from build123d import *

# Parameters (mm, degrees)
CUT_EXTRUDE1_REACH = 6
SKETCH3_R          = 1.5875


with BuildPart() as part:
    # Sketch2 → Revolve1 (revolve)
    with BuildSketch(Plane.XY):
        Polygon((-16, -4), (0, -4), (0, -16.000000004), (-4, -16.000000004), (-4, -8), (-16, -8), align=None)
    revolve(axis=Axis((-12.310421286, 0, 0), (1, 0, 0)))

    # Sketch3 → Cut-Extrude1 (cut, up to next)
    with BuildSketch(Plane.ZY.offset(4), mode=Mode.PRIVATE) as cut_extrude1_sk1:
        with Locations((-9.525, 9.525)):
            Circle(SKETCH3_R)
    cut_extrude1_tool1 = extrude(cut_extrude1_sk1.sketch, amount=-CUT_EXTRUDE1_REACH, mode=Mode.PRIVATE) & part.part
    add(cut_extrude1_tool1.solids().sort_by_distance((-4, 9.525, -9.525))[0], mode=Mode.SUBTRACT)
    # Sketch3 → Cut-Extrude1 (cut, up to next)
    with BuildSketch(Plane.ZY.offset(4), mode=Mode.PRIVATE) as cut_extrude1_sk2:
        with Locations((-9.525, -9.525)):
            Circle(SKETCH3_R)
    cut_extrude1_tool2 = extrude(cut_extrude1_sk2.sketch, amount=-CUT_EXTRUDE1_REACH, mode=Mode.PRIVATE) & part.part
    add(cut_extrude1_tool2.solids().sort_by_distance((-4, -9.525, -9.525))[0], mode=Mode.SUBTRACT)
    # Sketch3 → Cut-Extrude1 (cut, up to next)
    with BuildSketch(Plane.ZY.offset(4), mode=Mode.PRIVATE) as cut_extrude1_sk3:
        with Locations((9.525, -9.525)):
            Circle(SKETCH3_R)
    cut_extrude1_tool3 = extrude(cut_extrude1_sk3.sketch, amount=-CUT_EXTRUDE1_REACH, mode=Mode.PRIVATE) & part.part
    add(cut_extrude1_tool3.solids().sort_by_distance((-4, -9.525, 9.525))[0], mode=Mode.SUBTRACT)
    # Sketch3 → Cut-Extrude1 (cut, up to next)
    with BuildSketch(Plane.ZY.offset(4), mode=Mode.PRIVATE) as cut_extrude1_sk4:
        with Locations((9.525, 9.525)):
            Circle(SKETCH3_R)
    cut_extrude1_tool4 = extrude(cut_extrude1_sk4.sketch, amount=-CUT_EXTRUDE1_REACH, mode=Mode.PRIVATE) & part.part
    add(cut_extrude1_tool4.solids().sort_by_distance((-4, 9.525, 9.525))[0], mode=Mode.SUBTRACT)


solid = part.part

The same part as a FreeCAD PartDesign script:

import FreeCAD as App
import Part
import Sketcher
from FreeCAD import Vector

doc = App.newDocument("Part")
params = doc.addObject("Spreadsheet::Sheet", "Params")
for row, (alias, value) in enumerate([
    ("sketch1_width", "16 mm"),
    ("sketch1_width2", "12 mm"),
    ("revolution_angle", "360 deg"),
], start=1):
    params.set(f"A{row}", alias)
    params.set(f"B{row}", "=" + value)
    params.setAlias(f"B{row}", alias)

body = doc.addObject("PartDesign::Body", "Body")

sketch1 = body.newObject("Sketcher::SketchObject", "Sketch")
sketch1.AttachmentSupport = (doc.getObject("XY_Plane"), [""])
sketch1.MapMode = "FlatFace"
sketch1.addGeometry(Part.LineSegment(Vector(0, -4, 0), Vector(-16, -4, 0)), False)
sketch1.addGeometry(Part.LineSegment(Vector(-16, -4, 0), Vector(-16, -8, 0)), False)
sketch1.addGeometry(Part.LineSegment(Vector(-16, -8, 0), Vector(-4, -8, 0)), False)
sketch1.addGeometry(Part.LineSegment(Vector(-4, -8, 0), Vector(-4, -16, 0)), False)
sketch1.addGeometry(Part.LineSegment(Vector(-4, -16, 0), Vector(0, -16, 0)), False)
sketch1.addGeometry(Part.LineSegment(Vector(0, -16, 0), Vector(0, -4, 0)), False)
sketch1.addConstraint(Sketcher.Constraint("Coincident", 0, 2, 1, 1))
sketch1.addConstraint(Sketcher.Constraint("Coincident", 1, 2, 2, 1))
sketch1.addConstraint(Sketcher.Constraint("Coincident", 2, 2, 3, 1))
sketch1.addConstraint(Sketcher.Constraint("Coincident", 3, 2, 4, 1))
sketch1.addConstraint(Sketcher.Constraint("Coincident", 4, 2, 5, 1))
sketch1.addConstraint(Sketcher.Constraint("Coincident", 5, 2, 0, 1))
sketch1.addConstraint(Sketcher.Constraint("Horizontal", 0))
sketch1.addConstraint(Sketcher.Constraint("Vertical", 1))
sketch1.addConstraint(Sketcher.Constraint("Horizontal", 2))
sketch1.addConstraint(Sketcher.Constraint("Vertical", 3))
sketch1.addConstraint(Sketcher.Constraint("Horizontal", 4))
sketch1.addConstraint(Sketcher.Constraint("Vertical", 5))
sketch1.addConstraint(Sketcher.Constraint("PointOnObject", 4, 2, -2))
sketch1.addConstraint(Sketcher.Constraint("Equal", 4, 1))
sketch1.addConstraint(Sketcher.Constraint("Equal", 2, 5))
sketch1.addConstraint(Sketcher.Constraint("DistanceX", 0, 2, 0, 1, 16.0))
sketch1.addConstraint(Sketcher.Constraint("DistanceX", 2, 1, 2, 2, 12.0))
sketch1.addConstraint(Sketcher.Constraint("DistanceY", 0, 2, -1, 1, 4.0))
sketch1.setExpression("Constraints[15]", "Params.sketch1_width")
sketch1.setExpression("Constraints[16]", "Params.sketch1_width2")
revolution = body.newObject("PartDesign::Revolution", "Revolution")
revolution.Profile = sketch1
revolution.ReferenceAxis = (sketch1, ["H_Axis"])
revolution.setExpression("Angle", "Params.revolution_angle")

sketch2 = body.newObject("Sketcher::SketchObject", "Sketch001")
sketch2.AttachmentSupport = (doc.getObject("YZ_Plane"), [""])
sketch2.MapMode = "FlatFace"
sketch2.AttachmentOffset = App.Placement(Vector(0, 0, -4), App.Rotation())
sketch2.addGeometry(Part.Circle(Vector(9.5, -9.5, 0), Vector(0, 0, 1), 1.6), False)
sketch2.addConstraint(Sketcher.Constraint("Diameter", 0, 3.175))
sketch2.addConstraint(Sketcher.Constraint("DistanceX", -1, 1, 0, 3, 9.525))
sketch2.addConstraint(Sketcher.Constraint("DistanceY", 0, 3, -1, 1, 9.525))
pocket1 = body.newObject("PartDesign::Pocket", "Pocket")
pocket1.Profile = sketch2
pocket1.Type = "UpToFirst"
pocket1.Reversed = True

sketch3 = body.newObject("Sketcher::SketchObject", "Sketch002")
sketch3.AttachmentSupport = (doc.getObject("YZ_Plane"), [""])
sketch3.MapMode = "FlatFace"
sketch3.AttachmentOffset = App.Placement(Vector(0, 0, -4), App.Rotation())
sketch3.addGeometry(Part.Circle(Vector(-9.5, -9.5, 0), Vector(0, 0, 1), 1.6), False)
sketch3.addConstraint(Sketcher.Constraint("Diameter", 0, 3.175))
sketch3.addConstraint(Sketcher.Constraint("DistanceX", 0, 3, -1, 1, 9.525))
sketch3.addConstraint(Sketcher.Constraint("DistanceY", 0, 3, -1, 1, 9.525))
pocket2 = body.newObject("PartDesign::Pocket", "Pocket001")
pocket2.Profile = sketch3
pocket2.Type = "UpToFirst"
pocket2.Reversed = True

sketch4 = body.newObject("Sketcher::SketchObject", "Sketch003")
sketch4.AttachmentSupport = (doc.getObject("YZ_Plane"), [""])
sketch4.MapMode = "FlatFace"
sketch4.AttachmentOffset = App.Placement(Vector(0, 0, -4), App.Rotation())
sketch4.addGeometry(Part.Circle(Vector(-9.5, 9.5, 0), Vector(0, 0, 1), 1.6), False)
sketch4.addConstraint(Sketcher.Constraint("Diameter", 0, 3.175))
sketch4.addConstraint(Sketcher.Constraint("DistanceX", 0, 3, -1, 1, 9.525))
sketch4.addConstraint(Sketcher.Constraint("DistanceY", -1, 1, 0, 3, 9.525))
pocket3 = body.newObject("PartDesign::Pocket", "Pocket002")
pocket3.Profile = sketch4
pocket3.Type = "UpToFirst"
pocket3.Reversed = True

sketch5 = body.newObject("Sketcher::SketchObject", "Sketch004")
sketch5.AttachmentSupport = (doc.getObject("YZ_Plane"), [""])
sketch5.MapMode = "FlatFace"
sketch5.AttachmentOffset = App.Placement(Vector(0, 0, -4), App.Rotation())
sketch5.addGeometry(Part.Circle(Vector(9.5, 9.5, 0), Vector(0, 0, 1), 1.6), False)
sketch5.addConstraint(Sketcher.Constraint("Diameter", 0, 3.175))
sketch5.addConstraint(Sketcher.Constraint("DistanceX", -1, 1, 0, 3, 9.525))
sketch5.addConstraint(Sketcher.Constraint("DistanceY", -1, 1, 0, 3, 9.525))
pocket4 = body.newObject("PartDesign::Pocket", "Pocket003")
pocket4.Profile = sketch5
pocket4.Type = "UpToFirst"
pocket4.Reversed = True

doc.recompute()
